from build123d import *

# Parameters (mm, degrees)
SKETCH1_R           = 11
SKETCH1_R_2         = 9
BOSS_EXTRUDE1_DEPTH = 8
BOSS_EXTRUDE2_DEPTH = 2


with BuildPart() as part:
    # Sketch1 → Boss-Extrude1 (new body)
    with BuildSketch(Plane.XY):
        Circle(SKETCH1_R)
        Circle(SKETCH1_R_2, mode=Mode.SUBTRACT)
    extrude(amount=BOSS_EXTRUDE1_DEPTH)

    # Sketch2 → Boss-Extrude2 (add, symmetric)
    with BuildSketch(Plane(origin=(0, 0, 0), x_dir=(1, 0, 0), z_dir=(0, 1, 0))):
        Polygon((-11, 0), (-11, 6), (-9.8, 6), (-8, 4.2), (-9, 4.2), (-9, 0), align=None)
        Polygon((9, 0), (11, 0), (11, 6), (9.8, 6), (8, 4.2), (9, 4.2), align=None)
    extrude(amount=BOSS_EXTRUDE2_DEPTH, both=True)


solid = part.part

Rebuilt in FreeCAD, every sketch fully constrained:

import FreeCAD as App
import Part
import Sketcher


def add_polygon(sketch, points):
    """Adds a closed chain of lines whose ends are joined by coincident constraints."""
    first, n = sketch.GeometryCount, len(points)
    for a, b in zip(points, points[1:] + points[:1]):
        sketch.addGeometry(Part.LineSegment(App.Vector(*a, 0), App.Vector(*b, 0)), False)
    for i in range(n):
        sketch.addConstraint(Sketcher.Constraint("Coincident", first + i, 2, first + (i + 1) % n, 1))

doc = App.newDocument("Part")
body = doc.addObject("PartDesign::Body", "Body")

# Sketch on XY plane
sketch1 = body.newObject("Sketcher::SketchObject", "Sketch")
sketch1.AttachmentSupport = (doc.getObject("XY_Plane"), [""])
sketch1.MapMode = "FlatFace"
sketch1.addGeometry(Part.Circle(App.Vector(0, 0, 0), App.Vector(0, 0, 1), 11), False)
sketch1.addGeometry(Part.Circle(App.Vector(0, 0, 0), App.Vector(0, 0, 1), 9), False)
sketch1.addConstraint(Sketcher.Constraint("Coincident", 0, 3, -1, 1))
sketch1.addConstraint(Sketcher.Constraint("Coincident", 1, 3, -1, 1))
sketch1.addConstraint(Sketcher.Constraint("Diameter", 0, 22.0))
sketch1.addConstraint(Sketcher.Constraint("Diameter", 1, 18.0))
pad1 = body.newObject("PartDesign::Pad", "Pad")
pad1.Profile = sketch1
pad1.Length = 8

# Sketch on XZ plane
sketch2 = body.newObject("Sketcher::SketchObject", "Sketch001")
sketch2.AttachmentSupport = (doc.getObject("XZ_Plane"), [""])
sketch2.MapMode = "FlatFace"
add_polygon(sketch2, [(-11, -6), (-11, 0), (-9, 0), (-9, -4.2), (-8, -4.2), (-9.8, -6)])  # lines 0-5
add_polygon(sketch2, [(9, 0), (11, 0), (11, -6), (9.8, -6), (8, -4.2), (9, -4.2)])  # lines 6-11
sketch2.addConstraint(Sketcher.Constraint("Vertical", 0))
sketch2.addConstraint(Sketcher.Constraint("Horizontal", 1))
sketch2.addConstraint(Sketcher.Constraint("Vertical", 2))
sketch2.addConstraint(Sketcher.Constraint("Horizontal", 3))
sketch2.addConstraint(Sketcher.Constraint("Horizontal", 5))
sketch2.addConstraint(Sketcher.Constraint("Horizontal", 6))
sketch2.addConstraint(Sketcher.Constraint("Vertical", 7))
sketch2.addConstraint(Sketcher.Constraint("Horizontal", 8))
sketch2.addConstraint(Sketcher.Constraint("Horizontal", 10))
sketch2.addConstraint(Sketcher.Constraint("Vertical", 11))
sketch2.addConstraint(Sketcher.Constraint("Symmetric", 0, 2, 6, 2, -1, 1))
sketch2.addConstraint(Sketcher.Constraint("Symmetric", 4, 2, 8, 2, -2))
sketch2.addConstraint(Sketcher.Constraint("Symmetric", 3, 2, 9, 2, -2))
sketch2.addConstraint(Sketcher.Constraint("Symmetric", 1, 2, 11, 2, -2))
sketch2.addConstraint(Sketcher.Constraint("Perpendicular", 4, 9))
sketch2.addConstraint(Sketcher.Constraint("DistanceX", 1, 1, 1, 2, 2.0))
sketch2.addConstraint(Sketcher.Constraint("DistanceX", 3, 1, 3, 2, 1.0))
sketch2.addConstraint(Sketcher.Constraint("DistanceY", 0, 1, 0, 2, 6.0))
sketch2.addConstraint(Sketcher.Constraint("DistanceX", 5, 2, 5, 1, 1.2))
sketch2.addConstraint(Sketcher.Constraint("DistanceX", 0, 2, -1, 1, 11.0))
pad2 = body.newObject("PartDesign::Pad", "Pad001")
pad2.Profile = sketch2
pad2.Length = 4
pad2.Midplane = True

doc.recompute()
